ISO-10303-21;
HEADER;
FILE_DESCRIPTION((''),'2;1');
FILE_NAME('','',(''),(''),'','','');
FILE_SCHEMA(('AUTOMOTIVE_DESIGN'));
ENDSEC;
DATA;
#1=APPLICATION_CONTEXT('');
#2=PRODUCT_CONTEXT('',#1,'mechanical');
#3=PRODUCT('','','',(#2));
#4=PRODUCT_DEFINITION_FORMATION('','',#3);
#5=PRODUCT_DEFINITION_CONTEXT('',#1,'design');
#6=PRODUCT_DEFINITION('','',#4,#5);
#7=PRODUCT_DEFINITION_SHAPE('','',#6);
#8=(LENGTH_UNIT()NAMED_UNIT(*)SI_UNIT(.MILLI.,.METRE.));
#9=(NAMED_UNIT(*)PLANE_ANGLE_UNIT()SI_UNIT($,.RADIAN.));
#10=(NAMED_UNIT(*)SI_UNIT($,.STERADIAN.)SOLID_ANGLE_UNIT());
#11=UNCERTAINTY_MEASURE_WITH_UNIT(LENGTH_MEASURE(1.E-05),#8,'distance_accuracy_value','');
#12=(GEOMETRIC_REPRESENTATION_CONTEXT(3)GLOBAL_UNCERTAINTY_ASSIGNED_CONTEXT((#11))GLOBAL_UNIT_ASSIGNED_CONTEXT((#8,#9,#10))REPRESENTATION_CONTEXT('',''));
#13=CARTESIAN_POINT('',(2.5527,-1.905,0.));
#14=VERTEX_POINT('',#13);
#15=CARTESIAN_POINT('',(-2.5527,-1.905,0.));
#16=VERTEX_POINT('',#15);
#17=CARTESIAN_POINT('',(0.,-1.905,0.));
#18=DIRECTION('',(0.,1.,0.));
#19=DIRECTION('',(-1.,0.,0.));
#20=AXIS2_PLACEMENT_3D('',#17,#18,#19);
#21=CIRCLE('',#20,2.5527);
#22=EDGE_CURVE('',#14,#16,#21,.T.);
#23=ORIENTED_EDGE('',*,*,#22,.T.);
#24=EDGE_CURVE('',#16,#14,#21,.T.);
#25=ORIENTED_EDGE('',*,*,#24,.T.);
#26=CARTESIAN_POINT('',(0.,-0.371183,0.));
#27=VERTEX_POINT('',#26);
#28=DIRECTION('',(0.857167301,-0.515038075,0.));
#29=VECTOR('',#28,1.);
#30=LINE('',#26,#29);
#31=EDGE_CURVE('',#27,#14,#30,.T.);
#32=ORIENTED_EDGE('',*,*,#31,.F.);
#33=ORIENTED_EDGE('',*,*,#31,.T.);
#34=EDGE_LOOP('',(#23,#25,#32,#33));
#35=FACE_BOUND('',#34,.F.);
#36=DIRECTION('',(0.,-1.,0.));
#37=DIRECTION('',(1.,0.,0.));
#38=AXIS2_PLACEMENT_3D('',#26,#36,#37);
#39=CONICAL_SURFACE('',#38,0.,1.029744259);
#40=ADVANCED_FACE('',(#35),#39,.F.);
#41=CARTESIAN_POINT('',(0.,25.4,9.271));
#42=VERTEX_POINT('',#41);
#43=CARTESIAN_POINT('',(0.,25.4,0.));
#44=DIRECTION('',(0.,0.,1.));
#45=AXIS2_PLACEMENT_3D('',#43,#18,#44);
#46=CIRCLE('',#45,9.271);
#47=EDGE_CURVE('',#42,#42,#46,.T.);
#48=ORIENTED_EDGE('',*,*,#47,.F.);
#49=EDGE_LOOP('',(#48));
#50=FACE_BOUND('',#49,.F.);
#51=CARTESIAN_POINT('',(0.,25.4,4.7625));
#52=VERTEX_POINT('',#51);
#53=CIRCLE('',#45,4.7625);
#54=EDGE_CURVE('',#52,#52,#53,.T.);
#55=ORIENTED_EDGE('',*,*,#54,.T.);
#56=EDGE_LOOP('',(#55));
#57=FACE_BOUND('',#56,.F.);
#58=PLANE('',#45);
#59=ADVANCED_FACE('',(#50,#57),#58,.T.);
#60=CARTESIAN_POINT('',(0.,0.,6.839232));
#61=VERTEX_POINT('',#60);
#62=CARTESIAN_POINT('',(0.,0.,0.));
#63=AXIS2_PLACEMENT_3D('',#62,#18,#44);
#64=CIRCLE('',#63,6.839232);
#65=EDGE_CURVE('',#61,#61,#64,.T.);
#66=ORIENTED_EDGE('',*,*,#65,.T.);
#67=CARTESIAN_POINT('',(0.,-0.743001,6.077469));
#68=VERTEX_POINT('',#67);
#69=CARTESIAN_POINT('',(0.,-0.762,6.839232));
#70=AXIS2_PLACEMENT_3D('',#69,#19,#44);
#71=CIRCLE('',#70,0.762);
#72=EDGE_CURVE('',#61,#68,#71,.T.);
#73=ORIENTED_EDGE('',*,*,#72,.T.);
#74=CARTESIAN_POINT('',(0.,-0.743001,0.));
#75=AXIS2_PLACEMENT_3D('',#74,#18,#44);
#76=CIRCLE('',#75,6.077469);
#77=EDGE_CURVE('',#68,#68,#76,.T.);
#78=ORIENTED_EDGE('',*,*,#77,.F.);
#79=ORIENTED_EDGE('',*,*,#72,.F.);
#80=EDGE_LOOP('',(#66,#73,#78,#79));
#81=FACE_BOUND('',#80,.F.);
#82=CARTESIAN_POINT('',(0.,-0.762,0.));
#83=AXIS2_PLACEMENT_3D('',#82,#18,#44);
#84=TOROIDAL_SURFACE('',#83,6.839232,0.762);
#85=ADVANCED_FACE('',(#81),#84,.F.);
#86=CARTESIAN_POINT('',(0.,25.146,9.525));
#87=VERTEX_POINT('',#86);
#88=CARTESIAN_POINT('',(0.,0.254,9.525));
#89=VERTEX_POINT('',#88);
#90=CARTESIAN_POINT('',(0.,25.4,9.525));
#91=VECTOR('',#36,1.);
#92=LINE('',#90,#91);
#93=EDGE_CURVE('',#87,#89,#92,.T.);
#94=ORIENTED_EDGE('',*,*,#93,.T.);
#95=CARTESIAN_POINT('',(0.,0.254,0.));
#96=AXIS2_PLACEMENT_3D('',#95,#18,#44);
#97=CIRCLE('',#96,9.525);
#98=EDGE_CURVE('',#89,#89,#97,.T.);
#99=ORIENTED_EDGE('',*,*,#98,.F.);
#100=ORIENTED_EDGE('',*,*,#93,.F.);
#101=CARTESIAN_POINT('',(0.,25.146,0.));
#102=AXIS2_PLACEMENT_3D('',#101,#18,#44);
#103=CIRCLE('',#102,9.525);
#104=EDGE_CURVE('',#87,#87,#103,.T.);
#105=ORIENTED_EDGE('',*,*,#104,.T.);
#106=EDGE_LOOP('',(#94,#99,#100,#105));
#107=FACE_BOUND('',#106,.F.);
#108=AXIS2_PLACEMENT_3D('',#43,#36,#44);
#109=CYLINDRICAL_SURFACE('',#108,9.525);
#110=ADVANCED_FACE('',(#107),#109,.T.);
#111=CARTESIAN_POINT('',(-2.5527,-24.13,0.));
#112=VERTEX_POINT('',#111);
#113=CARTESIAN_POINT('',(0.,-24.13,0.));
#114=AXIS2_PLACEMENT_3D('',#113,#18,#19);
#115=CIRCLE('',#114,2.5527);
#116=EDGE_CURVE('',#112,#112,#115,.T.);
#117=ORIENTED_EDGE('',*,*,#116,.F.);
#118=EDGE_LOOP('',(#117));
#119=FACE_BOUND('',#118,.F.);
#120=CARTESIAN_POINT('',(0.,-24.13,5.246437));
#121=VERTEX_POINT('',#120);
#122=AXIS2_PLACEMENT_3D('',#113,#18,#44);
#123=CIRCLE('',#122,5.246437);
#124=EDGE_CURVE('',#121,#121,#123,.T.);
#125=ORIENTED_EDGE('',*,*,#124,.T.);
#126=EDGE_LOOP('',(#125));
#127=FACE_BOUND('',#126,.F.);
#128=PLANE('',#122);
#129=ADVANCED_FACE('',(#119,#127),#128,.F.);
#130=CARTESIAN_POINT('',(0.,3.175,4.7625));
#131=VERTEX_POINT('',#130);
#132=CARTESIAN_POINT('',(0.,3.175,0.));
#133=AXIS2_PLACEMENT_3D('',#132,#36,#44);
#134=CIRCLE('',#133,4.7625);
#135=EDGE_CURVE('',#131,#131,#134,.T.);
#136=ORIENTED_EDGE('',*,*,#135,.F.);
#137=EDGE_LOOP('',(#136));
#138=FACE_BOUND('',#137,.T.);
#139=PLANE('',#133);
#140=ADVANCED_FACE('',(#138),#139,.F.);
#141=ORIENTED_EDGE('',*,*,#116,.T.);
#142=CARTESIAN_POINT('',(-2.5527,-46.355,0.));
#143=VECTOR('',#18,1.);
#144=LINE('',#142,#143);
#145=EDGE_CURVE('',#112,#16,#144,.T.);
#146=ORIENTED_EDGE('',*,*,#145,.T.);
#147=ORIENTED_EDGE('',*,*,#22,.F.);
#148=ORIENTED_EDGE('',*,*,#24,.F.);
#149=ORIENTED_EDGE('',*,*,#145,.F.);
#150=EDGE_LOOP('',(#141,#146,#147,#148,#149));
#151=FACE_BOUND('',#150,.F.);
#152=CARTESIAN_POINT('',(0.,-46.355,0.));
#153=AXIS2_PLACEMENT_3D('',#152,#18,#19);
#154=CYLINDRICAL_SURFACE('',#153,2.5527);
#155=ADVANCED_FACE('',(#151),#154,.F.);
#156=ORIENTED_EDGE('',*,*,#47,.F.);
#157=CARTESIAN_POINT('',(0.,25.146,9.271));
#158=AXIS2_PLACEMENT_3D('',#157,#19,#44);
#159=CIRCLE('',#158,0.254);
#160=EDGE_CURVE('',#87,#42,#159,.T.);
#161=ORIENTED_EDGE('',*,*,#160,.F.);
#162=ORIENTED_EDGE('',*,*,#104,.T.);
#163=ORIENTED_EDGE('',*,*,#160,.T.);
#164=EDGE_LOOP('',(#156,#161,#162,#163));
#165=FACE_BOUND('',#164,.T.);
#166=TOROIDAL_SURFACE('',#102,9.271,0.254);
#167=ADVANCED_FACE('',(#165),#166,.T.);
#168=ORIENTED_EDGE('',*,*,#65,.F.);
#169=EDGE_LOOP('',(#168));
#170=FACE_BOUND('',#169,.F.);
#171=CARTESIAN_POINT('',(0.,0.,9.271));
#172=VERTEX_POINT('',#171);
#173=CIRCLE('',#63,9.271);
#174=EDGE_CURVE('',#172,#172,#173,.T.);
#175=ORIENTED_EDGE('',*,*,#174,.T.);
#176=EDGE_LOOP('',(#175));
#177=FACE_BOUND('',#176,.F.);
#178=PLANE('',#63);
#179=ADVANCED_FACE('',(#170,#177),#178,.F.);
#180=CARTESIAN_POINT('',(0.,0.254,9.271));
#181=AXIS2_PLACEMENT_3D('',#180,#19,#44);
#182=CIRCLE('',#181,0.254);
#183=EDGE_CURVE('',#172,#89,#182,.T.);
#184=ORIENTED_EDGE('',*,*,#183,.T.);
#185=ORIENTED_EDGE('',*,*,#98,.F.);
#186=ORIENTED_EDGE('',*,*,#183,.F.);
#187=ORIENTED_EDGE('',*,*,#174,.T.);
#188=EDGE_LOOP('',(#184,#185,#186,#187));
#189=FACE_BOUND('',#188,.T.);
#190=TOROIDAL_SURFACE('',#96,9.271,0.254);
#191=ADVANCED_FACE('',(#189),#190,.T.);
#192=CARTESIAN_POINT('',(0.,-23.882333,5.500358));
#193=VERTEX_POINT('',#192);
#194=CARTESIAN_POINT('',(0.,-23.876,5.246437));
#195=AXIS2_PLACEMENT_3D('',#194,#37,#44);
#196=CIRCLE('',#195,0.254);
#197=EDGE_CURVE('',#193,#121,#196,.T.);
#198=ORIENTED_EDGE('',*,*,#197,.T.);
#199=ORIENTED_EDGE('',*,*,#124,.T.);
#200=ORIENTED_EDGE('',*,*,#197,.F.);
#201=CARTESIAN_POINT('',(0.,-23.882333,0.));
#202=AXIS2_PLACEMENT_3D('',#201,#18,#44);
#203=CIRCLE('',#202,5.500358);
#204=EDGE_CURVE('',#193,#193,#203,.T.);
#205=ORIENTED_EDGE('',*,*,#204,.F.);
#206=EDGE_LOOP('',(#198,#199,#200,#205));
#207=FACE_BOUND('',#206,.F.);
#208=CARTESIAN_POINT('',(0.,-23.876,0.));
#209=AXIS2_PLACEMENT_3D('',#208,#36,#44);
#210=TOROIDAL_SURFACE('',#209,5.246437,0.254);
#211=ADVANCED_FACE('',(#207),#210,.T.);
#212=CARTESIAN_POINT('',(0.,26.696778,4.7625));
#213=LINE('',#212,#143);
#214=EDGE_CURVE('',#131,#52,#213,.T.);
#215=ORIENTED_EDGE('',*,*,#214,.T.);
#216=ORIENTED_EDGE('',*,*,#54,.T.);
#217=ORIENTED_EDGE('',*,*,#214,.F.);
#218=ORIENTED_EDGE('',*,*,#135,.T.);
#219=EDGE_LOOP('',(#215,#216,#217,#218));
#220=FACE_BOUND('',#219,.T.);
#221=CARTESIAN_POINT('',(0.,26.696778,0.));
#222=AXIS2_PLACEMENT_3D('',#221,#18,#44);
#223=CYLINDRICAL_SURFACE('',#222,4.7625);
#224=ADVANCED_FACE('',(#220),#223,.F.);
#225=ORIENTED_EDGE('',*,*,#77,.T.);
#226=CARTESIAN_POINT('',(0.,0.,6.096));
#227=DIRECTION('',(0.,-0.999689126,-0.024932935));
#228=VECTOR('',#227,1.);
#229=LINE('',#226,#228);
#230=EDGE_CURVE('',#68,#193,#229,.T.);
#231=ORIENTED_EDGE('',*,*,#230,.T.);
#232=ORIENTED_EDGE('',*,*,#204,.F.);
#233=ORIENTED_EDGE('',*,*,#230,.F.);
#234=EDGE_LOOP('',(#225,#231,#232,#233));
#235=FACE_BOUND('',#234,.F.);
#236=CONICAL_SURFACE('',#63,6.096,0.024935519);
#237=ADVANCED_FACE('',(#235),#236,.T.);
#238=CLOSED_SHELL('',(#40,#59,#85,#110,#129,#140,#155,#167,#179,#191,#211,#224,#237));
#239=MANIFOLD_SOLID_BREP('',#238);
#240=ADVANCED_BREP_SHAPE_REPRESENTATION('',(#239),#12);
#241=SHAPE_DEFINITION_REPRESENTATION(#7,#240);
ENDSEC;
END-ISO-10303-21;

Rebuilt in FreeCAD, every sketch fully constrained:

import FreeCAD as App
import Part
import Sketcher

V = App.Vector
Q = App.Units.Quantity


def edges_at(feature, points):
    """Names of the edges that pass closest to the given points."""
    edges = feature.Shape.Edges
    near = lambda p: min(range(len(edges)), key=lambda i: edges[i].distToShape(Part.Vertex(*p))[0])
    return sorted({f"Edge{near(p) + 1}" for p in points})

doc = App.newDocument("Part")
body = doc.addObject("PartDesign::Body", "Body")

sketch1 = body.newObject("Sketcher::SketchObject", "Sketch")
sketch1.AttachmentSupport = (doc.getObject("YZ_Plane"), [""])
sketch1.MapMode = "FlatFace"
sketch1.addGeometry([
    Part.LineSegment(V(-24.1, 0, 0), V(25.4, 0, 0)),
    Part.LineSegment(V(25.4, 0, 0), V(25.4, 9.5, 0)),
    Part.LineSegment(V(25.4, 9.5, 0), V(0, 9.5, 0)),
    Part.LineSegment(V(0, 9.5, 0), V(0, 6.1, 0)),
    Part.LineSegment(V(0, 6.1, 0), V(-24.1, 5.5, 0)),
    Part.LineSegment(V(-24.1, 5.5, 0), V(-24.1, 0, 0)),
], False)
sketch1.addConstraint([
    Sketcher.Constraint("Coincident", 0, 2, 1, 1),
    Sketcher.Constraint("Coincident", 1, 2, 2, 1),
    Sketcher.Constraint("Coincident", 2, 2, 3, 1),
    Sketcher.Constraint("Coincident", 3, 2, 4, 1),
    Sketcher.Constraint("Coincident", 4, 2, 5, 1),
    Sketcher.Constraint("Coincident", 5, 2, 0, 1),
    Sketcher.Constraint("Horizontal", 0),
    Sketcher.Constraint("Vertical", 1),
    Sketcher.Constraint("Horizontal", 2),
    Sketcher.Constraint("Vertical", 3),
    Sketcher.Constraint("Vertical", 5),
    Sketcher.Constraint("PointOnObject", 0, 2, -1),
    Sketcher.Constraint("PointOnObject", 2, 2, -2),
    Sketcher.Constraint("DistanceX", 2, 2, 2, 1, Q("1 in")),
    Sketcher.Constraint("DistanceX", 0, 1, 0, 2, Q("1.95 in")),
    Sketcher.Constraint("DistanceY", 1, 1, 1, 2, Q("0.375 in")),
    Sketcher.Constraint("DistanceY", 3, 2, 3, 1, Q("0.135 in")),
    Sketcher.Constraint("DistanceY", 5, 2, 5, 1, 5.494181),
])
revolution = body.newObject("PartDesign::Revolution", "Revolution")
revolution.Profile = sketch1
revolution.ReferenceAxis = (sketch1, ["H_Axis"])
revolution.Angle = 360

sketch2 = body.newObject("Sketcher::SketchObject", "Sketch001")
sketch2.AttachmentSupport = (doc.getObject("XZ_Plane"), [""])
sketch2.MapMode = "FlatFace"
sketch2.AttachmentOffset = App.Placement(V(0, 0, 0.95 * 25.4), App.Rotation())
sketch2.addGeometry(Part.Circle(V(0, 0, 0), V(0, 0, 1), 2.6), False)
sketch2.addConstraint([
    Sketcher.Constraint("Coincident", 0, 3, -1, 1),
    Sketcher.Constraint("Diameter", 0, Q("0.201 in")),
])
doc.recompute()
hole = body.newObject("PartDesign::Hole", "Hole")
hole.Profile = sketch2
hole.ThreadType = "None"
hole.Diameter = Q("0.201 in")
hole.DepthType = "Dimension"
hole.Depth = Q("0.875 in")
hole.DrillPoint = "Angled"
hole.DrillPointAngle = 118
doc.recompute()

fillet = body.newObject("PartDesign::Fillet", "Fillet")
fillet.Base = (hole, edges_at(hole, [(0, 0, -6.096)]))
fillet.Radius = Q("0.03 in")
doc.recompute()

fillet2 = body.newObject("PartDesign::Fillet", "Fillet001")
fillet2.Base = (fillet, edges_at(fillet, [(0, 0, -9.525), (0, 25.4, -9.525), (0, -24.13, -5.494)]))
fillet2.Radius = Q("0.01 in")

sketch3 = body.newObject("Sketcher::SketchObject", "Sketch002")
sketch3.AttachmentSupport = (doc.getObject("YZ_Plane"), [""])
sketch3.MapMode = "FlatFace"
sketch3.addGeometry([
    Part.LineSegment(V(3.2, 4.8, 0), V(3.2, 0, 0)),
    Part.LineSegment(V(3.2, 0, 0), V(50.2, 0, 0)),
    Part.LineSegment(V(50.2, 0, 0), V(50.2, 4.8, 0)),
    Part.LineSegment(V(50.2, 4.8, 0), V(3.2, 4.8, 0)),
], False)
sketch3.addConstraint([
    Sketcher.Constraint("Coincident", 0, 2, 1, 1),
    Sketcher.Constraint("Coincident", 1, 2, 2, 1),
    Sketcher.Constraint("Coincident", 2, 2, 3, 1),
    Sketcher.Constraint("Coincident", 3, 2, 0, 1),
    Sketcher.Constraint("Vertical", 0),
    Sketcher.Constraint("Horizontal", 1),
    Sketcher.Constraint("Vertical", 2),
    Sketcher.Constraint("Horizontal", 3),
    Sketcher.Constraint("PointOnObject", 0, 2, -1),
    Sketcher.Constraint("DistanceY", 0, 2, 0, 1, Q("0.1875 in")),
    Sketcher.Constraint("DistanceX", -1, 1, 0, 2, Q("0.125 in")),
    Sketcher.Constraint("DistanceX", 1, 1, 1, 2, 47.043556),
])
groove = body.newObject("PartDesign::Groove", "Groove")
groove.Profile = sketch3
groove.ReferenceAxis = (sketch3, ["H_Axis"])
groove.Angle = 360

doc.recompute()
